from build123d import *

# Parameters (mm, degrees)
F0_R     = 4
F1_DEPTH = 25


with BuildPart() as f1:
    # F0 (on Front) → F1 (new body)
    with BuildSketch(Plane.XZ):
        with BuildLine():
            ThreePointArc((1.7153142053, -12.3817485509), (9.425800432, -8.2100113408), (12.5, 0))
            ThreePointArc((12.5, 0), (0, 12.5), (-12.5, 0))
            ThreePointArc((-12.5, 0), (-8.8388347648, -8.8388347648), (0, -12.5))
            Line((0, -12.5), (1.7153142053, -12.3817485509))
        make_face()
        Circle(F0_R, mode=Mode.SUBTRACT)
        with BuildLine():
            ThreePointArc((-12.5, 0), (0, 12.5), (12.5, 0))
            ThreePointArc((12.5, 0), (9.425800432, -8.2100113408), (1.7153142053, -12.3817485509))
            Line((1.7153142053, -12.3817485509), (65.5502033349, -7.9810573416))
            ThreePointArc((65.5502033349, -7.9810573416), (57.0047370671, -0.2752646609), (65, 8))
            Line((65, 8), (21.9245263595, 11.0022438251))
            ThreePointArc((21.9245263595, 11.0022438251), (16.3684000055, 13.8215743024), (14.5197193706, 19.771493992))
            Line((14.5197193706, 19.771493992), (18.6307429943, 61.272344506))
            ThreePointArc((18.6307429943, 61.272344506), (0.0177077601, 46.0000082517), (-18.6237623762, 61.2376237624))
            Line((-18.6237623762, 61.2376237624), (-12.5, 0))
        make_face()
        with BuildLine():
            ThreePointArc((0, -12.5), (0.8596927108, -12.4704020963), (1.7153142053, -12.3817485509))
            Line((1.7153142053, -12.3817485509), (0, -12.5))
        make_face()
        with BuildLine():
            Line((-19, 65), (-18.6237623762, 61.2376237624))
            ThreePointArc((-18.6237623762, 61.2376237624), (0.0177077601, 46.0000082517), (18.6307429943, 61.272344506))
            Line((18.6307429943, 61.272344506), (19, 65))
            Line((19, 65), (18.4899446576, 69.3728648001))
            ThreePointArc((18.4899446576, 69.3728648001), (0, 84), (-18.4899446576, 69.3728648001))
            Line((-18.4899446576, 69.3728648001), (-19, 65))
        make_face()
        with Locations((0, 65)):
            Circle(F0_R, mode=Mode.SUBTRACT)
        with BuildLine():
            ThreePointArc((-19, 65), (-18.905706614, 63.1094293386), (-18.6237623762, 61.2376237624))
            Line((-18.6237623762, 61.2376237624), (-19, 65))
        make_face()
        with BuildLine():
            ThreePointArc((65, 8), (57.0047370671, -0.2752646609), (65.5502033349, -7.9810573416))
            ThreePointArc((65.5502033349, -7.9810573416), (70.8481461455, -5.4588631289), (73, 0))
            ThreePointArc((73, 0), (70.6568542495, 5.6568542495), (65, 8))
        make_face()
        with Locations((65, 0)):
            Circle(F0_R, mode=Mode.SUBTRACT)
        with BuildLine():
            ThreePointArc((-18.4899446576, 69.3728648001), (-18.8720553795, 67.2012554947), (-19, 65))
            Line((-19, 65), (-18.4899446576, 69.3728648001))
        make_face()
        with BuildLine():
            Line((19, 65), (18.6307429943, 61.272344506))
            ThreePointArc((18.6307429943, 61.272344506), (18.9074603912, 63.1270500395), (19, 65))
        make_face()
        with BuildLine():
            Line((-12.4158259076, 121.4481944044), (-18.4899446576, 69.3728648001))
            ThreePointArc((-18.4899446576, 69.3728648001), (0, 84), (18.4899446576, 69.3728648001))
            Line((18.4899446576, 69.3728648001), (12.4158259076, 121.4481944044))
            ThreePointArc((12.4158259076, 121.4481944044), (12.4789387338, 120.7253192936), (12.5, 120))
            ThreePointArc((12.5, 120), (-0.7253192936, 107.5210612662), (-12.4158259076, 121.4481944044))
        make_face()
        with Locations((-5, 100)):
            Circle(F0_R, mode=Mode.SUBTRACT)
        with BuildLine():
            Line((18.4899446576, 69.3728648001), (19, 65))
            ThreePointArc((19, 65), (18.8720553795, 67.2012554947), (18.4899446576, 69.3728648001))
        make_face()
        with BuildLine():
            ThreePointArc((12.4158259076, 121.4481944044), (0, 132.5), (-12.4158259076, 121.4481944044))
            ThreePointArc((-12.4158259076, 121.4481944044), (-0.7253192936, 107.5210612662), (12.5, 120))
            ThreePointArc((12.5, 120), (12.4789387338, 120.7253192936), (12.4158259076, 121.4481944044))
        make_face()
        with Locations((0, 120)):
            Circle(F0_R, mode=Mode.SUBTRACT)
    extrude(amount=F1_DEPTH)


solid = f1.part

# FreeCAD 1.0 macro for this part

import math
import FreeCAD as App
import Part
import Sketcher
from FreeCAD import Vector

doc = App.newDocument("Part")
body = doc.addObject("PartDesign::Body", "Body")

sketch1 = body.newObject("Sketcher::SketchObject", "Sketch")
sketch1.AttachmentSupport = (doc.getObject("XZ_Plane"), [""])
sketch1.MapMode = "FlatFace"
sketch1.addGeometry([
    Part.LineSegment(Vector(1.7, -12.4, 0), Vector(65.6, -8, 0)),
    Part.ArcOfCircle(Part.Circle(Vector(65, 0, 0), Vector(0, 0, 1), 8), math.radians(-86), math.radians(0)),
    Part.ArcOfCircle(Part.Circle(Vector(65, 0, 0), Vector(0, 0, 1), 8), math.radians(0), math.radians(90)),
    Part.LineSegment(Vector(65, 8, 0), Vector(21.9, 11, 0)),
    Part.ArcOfCircle(Part.Circle(Vector(22.5, 19, 0), Vector(0, 0, 1), 8), math.radians(174), math.radians(266)),
    Part.LineSegment(Vector(14.5, 19.8, 0), Vector(18.6, 61.3, 0)),
    Part.ArcOfCircle(Part.Circle(Vector(0, 65, 0), Vector(0, 0, 1), 19), math.radians(-11.31), math.radians(0)),
    Part.ArcOfCircle(Part.Circle(Vector(0, 65, 0), Vector(0, 0, 1), 19), math.radians(0), math.radians(13.31)),
    Part.LineSegment(Vector(18.5, 69.4, 0), Vector(12.4, 121.4, 0)),
    Part.ArcOfCircle(Part.Circle(Vector(0, 120, 0), Vector(0, 0, 1), 12.5), math.radians(7), math.radians(173)),
    Part.LineSegment(Vector(-12.4, 121.4, 0), Vector(-18.5, 69.4, 0)),
    Part.ArcOfCircle(Part.Circle(Vector(0, 65, 0), Vector(0, 0, 1), 19), math.radians(166.69), math.radians(180)),
    Part.ArcOfCircle(Part.Circle(Vector(0, 65, 0), Vector(0, 0, 1), 19), math.radians(180), math.radians(191.42)),
    Part.LineSegment(Vector(-18.6, 61.2, 0), Vector(-12.5, 0, 0)),
    Part.ArcOfCircle(Part.Circle(Vector(0, 0, 0), Vector(0, 0, 1), 12.5), math.radians(180), math.radians(270)),
    Part.ArcOfCircle(Part.Circle(Vector(0, 0, 0), Vector(0, 0, 1), 12.5), math.radians(-90), math.radians(-82.11)),
    Part.Circle(Vector(0, 0, 0), Vector(0, 0, 1), 4),
    Part.Circle(Vector(65, 0, 0), Vector(0, 0, 1), 4),
    Part.Circle(Vector(0, 65, 0), Vector(0, 0, 1), 4),
    Part.Circle(Vector(-5, 100, 0), Vector(0, 0, 1), 4),
    Part.Circle(Vector(0, 120, 0), Vector(0, 0, 1), 4),
], False)
sketch1.addConstraint([
    Sketcher.Constraint("Tangent", 0, 2, 1, 1),
    Sketcher.Constraint("Tangent", 1, 2, 2, 1),
    Sketcher.Constraint("Coincident", 2, 2, 3, 1),
    Sketcher.Constraint("Tangent", 3, 2, 4, 2),
    Sketcher.Constraint("Tangent", 4, 1, 5, 1),
    Sketcher.Constraint("Coincident", 5, 2, 6, 1),
    Sketcher.Constraint("Tangent", 6, 2, 7, 1),
    Sketcher.Constraint("Coincident", 7, 2, 8, 1),
    Sketcher.Constraint("Tangent", 8, 2, 9, 1),
    Sketcher.Constraint("Tangent", 9, 2, 10, 1),
    Sketcher.Constraint("Coincident", 10, 2, 11, 1),
    Sketcher.Constraint("Tangent", 11, 2, 12, 1),
    Sketcher.Constraint("Coincident", 12, 2, 13, 1),
    Sketcher.Constraint("Coincident", 13, 2, 14, 1),
    Sketcher.Constraint("Tangent", 14, 2, 15, 1),
    Sketcher.Constraint("Coincident", 15, 2, 0, 1),
    Sketcher.Constraint("Coincident", 14, 3, -1, 1),
    Sketcher.Constraint("Coincident", 16, 3, -1, 1),
    Sketcher.Constraint("Coincident", 11, 3, 6, 3),
    Sketcher.Constraint("Coincident", 17, 3, 1, 3),
    Sketcher.Constraint("Coincident", 18, 3, 6, 3),
    Sketcher.Constraint("Coincident", 20, 3, 9, 3),
    Sketcher.Constraint("Equal", 1, 2),
    Sketcher.Constraint("Equal", 2, 4),
    Sketcher.Constraint("Equal", 6, 7),
    Sketcher.Constraint("Equal", 7, 11),
    Sketcher.Constraint("Equal", 11, 12),
    Sketcher.Constraint("Equal", 9, 14),
    Sketcher.Constraint("Equal", 14, 15),
    Sketcher.Constraint("Equal", 16, 17),
    Sketcher.Constraint("Equal", 17, 18),
    Sketcher.Constraint("Equal", 18, 19),
    Sketcher.Constraint("Equal", 19, 20),
    Sketcher.Constraint("Symmetric", 8, 2, 9, 2, -2),
    Sketcher.Constraint("Symmetric", 6, 2, 11, 2, -2),
    Sketcher.Constraint("PointOnObject", 1, 3, -1),
    Sketcher.Constraint("PointOnObject", 1, 2, -1),
    Sketcher.Constraint("PointOnObject", 13, 2, -1),
    Sketcher.Constraint("PointOnObject", 14, 2, -2),
    Sketcher.Constraint("Horizontal", 18, 3, 6, 2),
    Sketcher.Constraint("Vertical", 17, 3, 2, 2),
    Sketcher.Constraint("Diameter", 16, 8.0),
    Sketcher.Constraint("Radius", 1, 8.0),
    Sketcher.Constraint("Radius", 6, 19.0),
    Sketcher.Constraint("Radius", 9, 12.5),
    Sketcher.Constraint("DistanceX", -1, 1, 1, 3, 65.0),
    Sketcher.Constraint("DistanceY", -1, 1, 6, 3, 65.0),
    Sketcher.Constraint("DistanceY", -1, 1, 9, 3, 120.0),
    Sketcher.Constraint("DistanceX", 19, 3, -1, 1, 5.0),
    Sketcher.Constraint("DistanceY", -1, 1, 19, 3, 100.0),
    Sketcher.Constraint("Distance", 0, 63.986398),
    Sketcher.Constraint("DistanceX", 7, 2, 5, 2, 0.140798),
    Sketcher.Constraint("Distance", 3, 43.179971),
    Sketcher.Constraint("Distance", 5, 41.70397),
    Sketcher.Constraint("Distance", 8, 52.428378),
    Sketcher.Constraint("Distance", 13, 61.54305),
])
pad1 = body.newObject("PartDesign::Pad", "Pad")
pad1.Profile = sketch1
pad1.Length = 25

doc.recompute()
